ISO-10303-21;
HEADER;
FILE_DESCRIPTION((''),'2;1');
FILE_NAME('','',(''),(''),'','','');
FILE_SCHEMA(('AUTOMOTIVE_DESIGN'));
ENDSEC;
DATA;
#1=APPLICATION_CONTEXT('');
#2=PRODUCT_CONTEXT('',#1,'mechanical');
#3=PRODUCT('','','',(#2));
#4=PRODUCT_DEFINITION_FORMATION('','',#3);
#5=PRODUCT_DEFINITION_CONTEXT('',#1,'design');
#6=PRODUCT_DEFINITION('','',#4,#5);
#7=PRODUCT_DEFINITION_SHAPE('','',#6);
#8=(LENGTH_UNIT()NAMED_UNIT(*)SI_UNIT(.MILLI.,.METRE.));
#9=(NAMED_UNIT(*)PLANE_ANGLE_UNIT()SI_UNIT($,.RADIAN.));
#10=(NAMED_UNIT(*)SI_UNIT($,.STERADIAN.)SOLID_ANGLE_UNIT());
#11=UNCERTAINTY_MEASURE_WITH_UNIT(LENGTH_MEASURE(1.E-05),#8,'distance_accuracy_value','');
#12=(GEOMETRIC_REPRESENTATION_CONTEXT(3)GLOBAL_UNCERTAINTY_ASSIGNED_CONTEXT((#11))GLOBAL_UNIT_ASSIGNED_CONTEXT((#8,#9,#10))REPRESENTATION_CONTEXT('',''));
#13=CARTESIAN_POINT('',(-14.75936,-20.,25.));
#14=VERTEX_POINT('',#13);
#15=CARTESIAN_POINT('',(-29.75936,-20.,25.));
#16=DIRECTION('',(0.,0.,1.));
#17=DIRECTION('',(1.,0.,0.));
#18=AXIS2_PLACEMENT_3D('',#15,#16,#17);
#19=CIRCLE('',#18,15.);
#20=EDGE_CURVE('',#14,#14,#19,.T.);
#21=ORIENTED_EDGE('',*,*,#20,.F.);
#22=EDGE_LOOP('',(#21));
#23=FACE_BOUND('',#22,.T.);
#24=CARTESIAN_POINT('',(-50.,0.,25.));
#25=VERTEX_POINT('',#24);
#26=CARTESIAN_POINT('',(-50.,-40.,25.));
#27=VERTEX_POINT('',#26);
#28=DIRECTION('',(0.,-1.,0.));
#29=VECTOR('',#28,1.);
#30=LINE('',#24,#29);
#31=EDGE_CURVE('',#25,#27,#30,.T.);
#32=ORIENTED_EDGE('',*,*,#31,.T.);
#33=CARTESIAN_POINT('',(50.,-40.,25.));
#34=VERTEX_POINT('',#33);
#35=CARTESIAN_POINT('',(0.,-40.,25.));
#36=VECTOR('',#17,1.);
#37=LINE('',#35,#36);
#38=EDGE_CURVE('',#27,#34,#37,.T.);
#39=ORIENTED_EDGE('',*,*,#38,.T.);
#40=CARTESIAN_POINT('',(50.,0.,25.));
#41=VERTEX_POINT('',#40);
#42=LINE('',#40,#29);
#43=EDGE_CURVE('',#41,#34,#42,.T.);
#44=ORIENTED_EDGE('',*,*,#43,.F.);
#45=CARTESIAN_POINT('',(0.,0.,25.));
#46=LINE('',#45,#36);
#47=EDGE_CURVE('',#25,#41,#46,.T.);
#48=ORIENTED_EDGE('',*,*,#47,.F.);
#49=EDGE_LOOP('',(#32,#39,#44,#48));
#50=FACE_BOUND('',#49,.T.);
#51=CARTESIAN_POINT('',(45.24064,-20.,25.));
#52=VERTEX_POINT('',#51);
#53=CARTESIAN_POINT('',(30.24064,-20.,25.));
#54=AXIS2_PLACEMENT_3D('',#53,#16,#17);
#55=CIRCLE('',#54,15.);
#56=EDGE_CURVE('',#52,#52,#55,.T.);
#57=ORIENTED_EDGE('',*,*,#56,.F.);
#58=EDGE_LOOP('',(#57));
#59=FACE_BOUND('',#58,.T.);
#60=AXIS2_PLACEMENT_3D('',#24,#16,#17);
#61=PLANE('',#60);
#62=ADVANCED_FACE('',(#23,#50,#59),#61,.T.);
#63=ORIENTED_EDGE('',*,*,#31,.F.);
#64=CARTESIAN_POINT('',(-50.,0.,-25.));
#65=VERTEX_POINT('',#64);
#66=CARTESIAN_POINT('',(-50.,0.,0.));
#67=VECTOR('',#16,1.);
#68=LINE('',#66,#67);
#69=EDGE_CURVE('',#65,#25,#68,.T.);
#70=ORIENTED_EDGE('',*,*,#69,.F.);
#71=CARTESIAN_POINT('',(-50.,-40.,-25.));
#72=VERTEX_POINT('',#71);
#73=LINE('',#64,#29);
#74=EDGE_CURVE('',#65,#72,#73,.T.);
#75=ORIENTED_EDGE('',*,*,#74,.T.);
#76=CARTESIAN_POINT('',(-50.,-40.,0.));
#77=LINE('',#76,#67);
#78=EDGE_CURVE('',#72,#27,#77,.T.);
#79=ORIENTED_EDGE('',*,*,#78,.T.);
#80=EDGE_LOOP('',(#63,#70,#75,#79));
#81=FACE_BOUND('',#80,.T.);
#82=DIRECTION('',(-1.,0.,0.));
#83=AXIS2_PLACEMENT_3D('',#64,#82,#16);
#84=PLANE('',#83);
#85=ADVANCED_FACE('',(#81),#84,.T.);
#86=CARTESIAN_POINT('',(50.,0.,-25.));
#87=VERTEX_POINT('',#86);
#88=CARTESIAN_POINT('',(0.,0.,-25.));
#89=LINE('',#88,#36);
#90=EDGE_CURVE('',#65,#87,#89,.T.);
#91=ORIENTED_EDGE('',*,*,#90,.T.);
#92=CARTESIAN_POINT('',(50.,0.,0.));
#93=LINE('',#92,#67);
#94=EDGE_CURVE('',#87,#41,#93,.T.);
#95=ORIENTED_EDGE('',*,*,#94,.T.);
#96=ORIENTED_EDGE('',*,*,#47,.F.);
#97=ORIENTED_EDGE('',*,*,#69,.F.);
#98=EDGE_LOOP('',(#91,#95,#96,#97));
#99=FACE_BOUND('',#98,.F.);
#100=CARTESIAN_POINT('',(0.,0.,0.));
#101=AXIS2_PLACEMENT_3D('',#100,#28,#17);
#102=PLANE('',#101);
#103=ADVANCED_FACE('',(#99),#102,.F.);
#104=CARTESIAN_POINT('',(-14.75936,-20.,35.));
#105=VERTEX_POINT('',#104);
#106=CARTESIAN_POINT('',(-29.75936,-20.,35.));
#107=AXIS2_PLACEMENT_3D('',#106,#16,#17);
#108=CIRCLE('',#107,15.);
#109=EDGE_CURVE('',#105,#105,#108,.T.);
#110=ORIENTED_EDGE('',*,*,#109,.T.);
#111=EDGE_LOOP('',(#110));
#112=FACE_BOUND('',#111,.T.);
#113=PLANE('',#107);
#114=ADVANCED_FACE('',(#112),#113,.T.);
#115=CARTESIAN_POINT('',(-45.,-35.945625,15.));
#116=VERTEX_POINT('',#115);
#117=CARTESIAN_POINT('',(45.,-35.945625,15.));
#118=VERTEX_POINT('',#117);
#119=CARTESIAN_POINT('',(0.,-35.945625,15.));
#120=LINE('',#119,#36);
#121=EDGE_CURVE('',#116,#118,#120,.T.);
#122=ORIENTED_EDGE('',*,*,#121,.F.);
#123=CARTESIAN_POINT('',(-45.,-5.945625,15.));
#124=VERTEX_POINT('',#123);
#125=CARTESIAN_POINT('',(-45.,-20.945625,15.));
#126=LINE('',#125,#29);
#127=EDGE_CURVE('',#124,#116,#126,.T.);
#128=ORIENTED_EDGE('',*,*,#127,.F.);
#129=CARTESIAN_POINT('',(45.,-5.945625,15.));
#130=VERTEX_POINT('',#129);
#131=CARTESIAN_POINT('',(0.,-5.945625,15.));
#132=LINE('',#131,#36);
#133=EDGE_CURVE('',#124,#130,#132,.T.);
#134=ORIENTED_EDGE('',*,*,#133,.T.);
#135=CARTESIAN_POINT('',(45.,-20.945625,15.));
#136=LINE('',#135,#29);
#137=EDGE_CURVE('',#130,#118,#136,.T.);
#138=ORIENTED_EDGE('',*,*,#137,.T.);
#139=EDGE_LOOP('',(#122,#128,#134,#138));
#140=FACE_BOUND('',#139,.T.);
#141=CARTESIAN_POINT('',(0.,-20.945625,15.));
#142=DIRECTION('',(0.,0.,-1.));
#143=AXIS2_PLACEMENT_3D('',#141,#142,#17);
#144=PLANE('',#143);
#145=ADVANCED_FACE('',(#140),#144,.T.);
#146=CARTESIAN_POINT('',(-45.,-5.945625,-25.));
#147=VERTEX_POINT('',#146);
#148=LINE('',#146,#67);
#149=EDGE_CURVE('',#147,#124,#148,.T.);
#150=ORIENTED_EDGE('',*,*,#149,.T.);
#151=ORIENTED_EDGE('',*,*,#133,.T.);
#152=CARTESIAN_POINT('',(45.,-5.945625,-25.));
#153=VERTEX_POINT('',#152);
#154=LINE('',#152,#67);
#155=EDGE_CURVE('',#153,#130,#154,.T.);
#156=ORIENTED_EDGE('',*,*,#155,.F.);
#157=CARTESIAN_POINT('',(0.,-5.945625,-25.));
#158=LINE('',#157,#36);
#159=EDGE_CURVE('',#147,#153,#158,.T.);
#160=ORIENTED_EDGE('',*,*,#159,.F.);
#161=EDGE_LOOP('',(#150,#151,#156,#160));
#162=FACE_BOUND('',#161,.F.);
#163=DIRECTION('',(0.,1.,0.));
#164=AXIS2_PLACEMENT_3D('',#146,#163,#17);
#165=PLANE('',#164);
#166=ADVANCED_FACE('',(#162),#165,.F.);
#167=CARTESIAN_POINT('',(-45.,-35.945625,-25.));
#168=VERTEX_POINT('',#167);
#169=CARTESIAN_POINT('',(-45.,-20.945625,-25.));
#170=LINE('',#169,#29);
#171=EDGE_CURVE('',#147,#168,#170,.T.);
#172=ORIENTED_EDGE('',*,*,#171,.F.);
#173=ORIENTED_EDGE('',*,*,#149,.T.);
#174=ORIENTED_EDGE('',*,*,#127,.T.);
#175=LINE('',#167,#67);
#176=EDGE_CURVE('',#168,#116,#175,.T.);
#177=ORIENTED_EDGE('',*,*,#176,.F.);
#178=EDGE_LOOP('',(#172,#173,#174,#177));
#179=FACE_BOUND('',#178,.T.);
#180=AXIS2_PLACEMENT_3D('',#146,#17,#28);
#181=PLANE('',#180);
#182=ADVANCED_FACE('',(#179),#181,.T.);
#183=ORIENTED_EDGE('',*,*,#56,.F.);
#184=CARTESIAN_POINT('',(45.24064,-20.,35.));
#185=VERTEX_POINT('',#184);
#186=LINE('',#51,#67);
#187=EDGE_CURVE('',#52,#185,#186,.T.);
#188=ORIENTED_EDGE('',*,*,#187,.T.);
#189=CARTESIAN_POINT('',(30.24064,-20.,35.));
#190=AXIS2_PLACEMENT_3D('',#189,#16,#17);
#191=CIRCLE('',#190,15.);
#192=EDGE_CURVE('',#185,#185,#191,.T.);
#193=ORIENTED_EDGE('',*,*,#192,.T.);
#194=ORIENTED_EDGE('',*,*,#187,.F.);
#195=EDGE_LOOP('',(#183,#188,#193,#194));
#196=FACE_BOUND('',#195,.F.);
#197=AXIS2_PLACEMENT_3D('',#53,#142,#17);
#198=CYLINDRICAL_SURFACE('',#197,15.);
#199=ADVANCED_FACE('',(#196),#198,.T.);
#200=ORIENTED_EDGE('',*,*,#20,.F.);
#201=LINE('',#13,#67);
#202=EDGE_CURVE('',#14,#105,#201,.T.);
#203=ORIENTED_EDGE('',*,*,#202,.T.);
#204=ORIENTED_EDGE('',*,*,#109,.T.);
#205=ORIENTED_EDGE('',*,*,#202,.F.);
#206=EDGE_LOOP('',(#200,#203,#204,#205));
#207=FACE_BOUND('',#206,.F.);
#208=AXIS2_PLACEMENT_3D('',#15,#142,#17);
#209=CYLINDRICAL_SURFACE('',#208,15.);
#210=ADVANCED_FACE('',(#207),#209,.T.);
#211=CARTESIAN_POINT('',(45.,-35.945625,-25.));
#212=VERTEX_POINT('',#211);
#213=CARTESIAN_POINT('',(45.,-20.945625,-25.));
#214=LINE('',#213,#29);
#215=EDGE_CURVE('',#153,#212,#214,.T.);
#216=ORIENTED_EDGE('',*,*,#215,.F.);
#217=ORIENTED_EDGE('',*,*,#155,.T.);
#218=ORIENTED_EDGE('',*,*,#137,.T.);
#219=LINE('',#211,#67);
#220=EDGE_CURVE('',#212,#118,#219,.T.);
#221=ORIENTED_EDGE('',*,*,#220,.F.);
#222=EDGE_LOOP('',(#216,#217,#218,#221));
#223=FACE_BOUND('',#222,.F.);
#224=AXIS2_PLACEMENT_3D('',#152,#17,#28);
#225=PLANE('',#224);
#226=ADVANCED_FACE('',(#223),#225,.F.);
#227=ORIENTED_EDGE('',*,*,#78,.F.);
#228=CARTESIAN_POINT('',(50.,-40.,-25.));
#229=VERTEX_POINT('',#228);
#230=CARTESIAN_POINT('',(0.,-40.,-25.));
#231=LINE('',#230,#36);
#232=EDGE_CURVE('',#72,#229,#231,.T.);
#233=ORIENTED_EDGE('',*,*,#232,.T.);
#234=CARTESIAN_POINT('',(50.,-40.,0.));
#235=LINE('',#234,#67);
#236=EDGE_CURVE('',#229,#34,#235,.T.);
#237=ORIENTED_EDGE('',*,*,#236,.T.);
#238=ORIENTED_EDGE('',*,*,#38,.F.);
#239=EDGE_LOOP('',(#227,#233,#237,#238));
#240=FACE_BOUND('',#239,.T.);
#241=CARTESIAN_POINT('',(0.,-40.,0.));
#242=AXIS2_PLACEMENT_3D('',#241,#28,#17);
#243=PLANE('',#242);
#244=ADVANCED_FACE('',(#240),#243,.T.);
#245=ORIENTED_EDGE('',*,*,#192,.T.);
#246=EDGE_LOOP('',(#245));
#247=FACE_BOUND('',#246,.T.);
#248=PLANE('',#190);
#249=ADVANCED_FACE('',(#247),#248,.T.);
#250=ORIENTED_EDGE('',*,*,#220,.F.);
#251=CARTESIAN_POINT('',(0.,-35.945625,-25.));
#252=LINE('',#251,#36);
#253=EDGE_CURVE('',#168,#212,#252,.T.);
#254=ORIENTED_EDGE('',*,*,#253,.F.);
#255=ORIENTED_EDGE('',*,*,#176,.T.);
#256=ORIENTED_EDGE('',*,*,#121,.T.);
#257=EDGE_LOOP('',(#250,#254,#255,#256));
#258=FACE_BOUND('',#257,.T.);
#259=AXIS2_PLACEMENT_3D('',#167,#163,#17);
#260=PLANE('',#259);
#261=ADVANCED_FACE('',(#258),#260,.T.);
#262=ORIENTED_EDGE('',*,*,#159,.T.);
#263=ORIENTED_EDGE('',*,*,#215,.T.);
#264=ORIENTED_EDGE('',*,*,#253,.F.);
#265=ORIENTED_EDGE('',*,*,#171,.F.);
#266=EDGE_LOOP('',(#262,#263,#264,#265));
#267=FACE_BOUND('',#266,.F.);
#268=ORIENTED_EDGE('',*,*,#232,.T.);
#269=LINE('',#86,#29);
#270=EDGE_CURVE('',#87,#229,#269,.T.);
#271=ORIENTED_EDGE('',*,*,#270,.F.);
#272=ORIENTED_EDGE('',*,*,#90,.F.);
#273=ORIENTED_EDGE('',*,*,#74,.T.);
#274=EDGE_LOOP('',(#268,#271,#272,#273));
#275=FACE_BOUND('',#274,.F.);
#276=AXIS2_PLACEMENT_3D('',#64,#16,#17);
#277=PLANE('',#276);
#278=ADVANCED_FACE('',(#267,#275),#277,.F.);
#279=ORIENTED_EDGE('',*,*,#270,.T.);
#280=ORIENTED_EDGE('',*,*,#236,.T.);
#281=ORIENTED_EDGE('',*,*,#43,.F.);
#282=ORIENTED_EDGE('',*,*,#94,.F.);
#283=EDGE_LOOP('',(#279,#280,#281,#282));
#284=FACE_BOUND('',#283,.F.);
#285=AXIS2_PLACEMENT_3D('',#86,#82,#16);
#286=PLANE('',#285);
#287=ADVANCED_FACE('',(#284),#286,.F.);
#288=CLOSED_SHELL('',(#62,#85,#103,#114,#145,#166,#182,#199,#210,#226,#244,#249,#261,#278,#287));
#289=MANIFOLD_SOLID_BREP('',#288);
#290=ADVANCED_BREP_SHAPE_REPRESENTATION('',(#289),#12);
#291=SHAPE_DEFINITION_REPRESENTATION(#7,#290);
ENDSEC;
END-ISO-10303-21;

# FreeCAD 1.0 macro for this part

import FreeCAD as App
import Part
import Sketcher
from FreeCAD import Vector
Q = App.Units.Quantity


def add_polygon(sketch, points):
    """Adds a closed chain of lines whose ends are joined by coincident constraints."""
    first, n = sketch.GeometryCount, len(points)
    for a, b in zip(points, points[1:] + points[:1]):
        sketch.addGeometry(Part.LineSegment(App.Vector(*a, 0), App.Vector(*b, 0)), False)
    for i in range(n):
        sketch.addConstraint(Sketcher.Constraint("Coincident", first + i, 2, first + (i + 1) % n, 1))

doc = App.newDocument("Part")
body = doc.addObject("PartDesign::Body", "Body")

sketch1 = body.newObject("Sketcher::SketchObject", "Sketch")
sketch1.AttachmentSupport = (doc.getObject("XZ_Plane"), [""])
sketch1.MapMode = "FlatFace"
add_polygon(sketch1, [(-50, 25), (-50, -25), (50, -25), (50, 25)])
sketch1.addConstraint([
    Sketcher.Constraint("Vertical", 0),
    Sketcher.Constraint("Horizontal", 1),
    Sketcher.Constraint("Vertical", 2),
    Sketcher.Constraint("Horizontal", 3),
    Sketcher.Constraint("Symmetric", 0, 2, 2, 2, -1, 1),
    Sketcher.Constraint("DistanceX", 1, 1, 1, 2, Q("100 mm")),
    Sketcher.Constraint("DistanceY", 0, 2, 0, 1, Q("50 mm")),
])
pad1 = body.newObject("PartDesign::Pad", "Pad")
pad1.Profile = sketch1
pad1.Length = 40

sketch2 = body.newObject("Sketcher::SketchObject", "Sketch001")
sketch2.AttachmentSupport = (doc.getObject("XY_Plane"), [""])
sketch2.MapMode = "FlatFace"
sketch2.AttachmentOffset = App.Placement(Vector(0, 0, 25), App.Rotation())
sketch2.addGeometry([
    Part.Circle(Vector(-29.75936, -20, 0), Vector(0, 0, 1), 15),
    Part.Circle(Vector(30.24064, -20, 0), Vector(0, 0, 1), 15),
], False)
sketch2.addConstraint([
    Sketcher.Constraint("Equal", 0, 1),
    Sketcher.Constraint("Horizontal", 0, 3, 1, 3),
    Sketcher.Constraint("Diameter", 0, Q("30 mm")),
    Sketcher.Constraint("DistanceY", 0, 3, -1, 1, Q("20 mm")),
    Sketcher.Constraint("DistanceX", 0, 3, 1, 3, Q("60 mm")),
    Sketcher.Constraint("DistanceX", 0, 3, -1, 1, Q("29.75936 mm")),
])
pad2 = body.newObject("PartDesign::Pad", "Pad001")
pad2.Profile = sketch2
pad2.Length = 10

sketch3 = body.newObject("Sketcher::SketchObject", "Sketch002")
sketch3.AttachmentSupport = (doc.getObject("XY_Plane"), [""])
sketch3.MapMode = "FlatFace"
sketch3.AttachmentOffset = App.Placement(Vector(0, 0, -25), App.Rotation())
add_polygon(sketch3, [(-45, -35.945625), (-45, -5.945625), (45, -5.945625), (45, -35.945625)])
sketch3.addConstraint([
    Sketcher.Constraint("Vertical", 0),
    Sketcher.Constraint("Horizontal", 1),
    Sketcher.Constraint("Vertical", 2),
    Sketcher.Constraint("Horizontal", 3),
    Sketcher.Constraint("DistanceX", 1, 1, 1, 2, Q("90 mm")),
    Sketcher.Constraint("DistanceY", 0, 1, 0, 2, Q("30 mm")),
    Sketcher.Constraint("DistanceX", 0, 2, -1, 1, Q("45 mm")),
    Sketcher.Constraint("DistanceY", 0, 2, -1, 1, Q("5.945625 mm")),
])
pocket1 = body.newObject("PartDesign::Pocket", "Pocket")
pocket1.Profile = sketch3
pocket1.Length = 40
pocket1.Reversed = True

doc.recompute()
